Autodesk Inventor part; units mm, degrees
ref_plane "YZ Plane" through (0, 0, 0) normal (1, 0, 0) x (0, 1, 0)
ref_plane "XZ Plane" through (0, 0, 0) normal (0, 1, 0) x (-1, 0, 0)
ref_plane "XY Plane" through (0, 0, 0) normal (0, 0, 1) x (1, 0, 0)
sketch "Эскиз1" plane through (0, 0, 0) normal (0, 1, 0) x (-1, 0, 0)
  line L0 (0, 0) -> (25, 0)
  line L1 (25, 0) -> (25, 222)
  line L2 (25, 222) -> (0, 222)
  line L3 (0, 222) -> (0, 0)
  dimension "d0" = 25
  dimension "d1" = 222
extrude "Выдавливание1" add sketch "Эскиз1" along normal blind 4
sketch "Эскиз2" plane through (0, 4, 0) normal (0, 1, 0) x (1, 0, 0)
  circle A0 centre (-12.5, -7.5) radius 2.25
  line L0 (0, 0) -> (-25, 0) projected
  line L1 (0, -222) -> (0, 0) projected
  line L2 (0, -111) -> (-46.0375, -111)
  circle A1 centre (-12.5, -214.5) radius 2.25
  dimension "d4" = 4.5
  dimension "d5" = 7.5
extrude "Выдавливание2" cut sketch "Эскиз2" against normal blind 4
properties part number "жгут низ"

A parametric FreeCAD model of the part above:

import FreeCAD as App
import Part
import Sketcher

V = App.Vector
Q = App.Units.Quantity


def add_polygon(sketch, points):
    """Adds a closed chain of lines whose ends are joined by coincident constraints."""
    first, n = sketch.GeometryCount, len(points)
    for a, b in zip(points, points[1:] + points[:1]):
        sketch.addGeometry(Part.LineSegment(App.Vector(*a, 0), App.Vector(*b, 0)), False)
    for i in range(n):
        sketch.addConstraint(Sketcher.Constraint("Coincident", first + i, 2, first + (i + 1) % n, 1))

doc = App.newDocument("Part")
body = doc.addObject("PartDesign::Body", "Body")

sketch1 = body.newObject("Sketcher::SketchObject", "Sketch")
sketch1.AttachmentSupport = (doc.getObject("XZ_Plane"), [""])
sketch1.MapMode = "FlatFace"
add_polygon(sketch1, [(0, 222), (0, 0), (-25, 0), (-25, 222)])
sketch1.addConstraint(Sketcher.Constraint("Vertical", 0))
sketch1.addConstraint(Sketcher.Constraint("Horizontal", 1))
sketch1.addConstraint(Sketcher.Constraint("Vertical", 2))
sketch1.addConstraint(Sketcher.Constraint("Horizontal", 3))
sketch1.addConstraint(Sketcher.Constraint("Coincident", 0, 2, -1, 1))
sketch1.addConstraint(Sketcher.Constraint("DistanceX", 1, 2, 1, 1, Q("25 mm")))
sketch1.addConstraint(Sketcher.Constraint("DistanceY", 0, 2, 0, 1, Q("222 mm")))
pad1 = body.newObject("PartDesign::Pad", "Pad")
pad1.Profile = sketch1
pad1.Length = 4
pad1.Reversed = True

sketch2 = body.newObject("Sketcher::SketchObject", "Sketch001")
sketch2.AttachmentSupport = (doc.getObject("XZ_Plane"), [""])
sketch2.MapMode = "FlatFace"
sketch2.AttachmentOffset = App.Placement(V(0, 0, -4), App.Rotation())
sketch2.addGeometry(Part.Circle(V(-12.5, 7.5, 0), V(0, 0, 1), 2.2), False)
sketch2.addGeometry(Part.Circle(V(-12.5, 214.5, 0), V(0, 0, 1), 2.2), False)
sketch2.addConstraint(Sketcher.Constraint("Equal", 0, 1))
sketch2.addConstraint(Sketcher.Constraint("Vertical", 0, 3, 1, 3))
sketch2.addConstraint(Sketcher.Constraint("Diameter", 0, Q("4.5 mm")))
sketch2.addConstraint(Sketcher.Constraint("DistanceY", -1, 1, 0, 3, Q("7.5 mm")))
sketch2.addConstraint(Sketcher.Constraint("DistanceY", 0, 3, 1, 3, Q("207 mm")))
sketch2.addConstraint(Sketcher.Constraint("DistanceX", 0, 3, -1, 1, Q("12.5 mm")))
pocket1 = body.newObject("PartDesign::Pocket", "Pocket")
pocket1.Profile = sketch2
pocket1.Length = 4
pocket1.Reversed = True

doc.recompute()
